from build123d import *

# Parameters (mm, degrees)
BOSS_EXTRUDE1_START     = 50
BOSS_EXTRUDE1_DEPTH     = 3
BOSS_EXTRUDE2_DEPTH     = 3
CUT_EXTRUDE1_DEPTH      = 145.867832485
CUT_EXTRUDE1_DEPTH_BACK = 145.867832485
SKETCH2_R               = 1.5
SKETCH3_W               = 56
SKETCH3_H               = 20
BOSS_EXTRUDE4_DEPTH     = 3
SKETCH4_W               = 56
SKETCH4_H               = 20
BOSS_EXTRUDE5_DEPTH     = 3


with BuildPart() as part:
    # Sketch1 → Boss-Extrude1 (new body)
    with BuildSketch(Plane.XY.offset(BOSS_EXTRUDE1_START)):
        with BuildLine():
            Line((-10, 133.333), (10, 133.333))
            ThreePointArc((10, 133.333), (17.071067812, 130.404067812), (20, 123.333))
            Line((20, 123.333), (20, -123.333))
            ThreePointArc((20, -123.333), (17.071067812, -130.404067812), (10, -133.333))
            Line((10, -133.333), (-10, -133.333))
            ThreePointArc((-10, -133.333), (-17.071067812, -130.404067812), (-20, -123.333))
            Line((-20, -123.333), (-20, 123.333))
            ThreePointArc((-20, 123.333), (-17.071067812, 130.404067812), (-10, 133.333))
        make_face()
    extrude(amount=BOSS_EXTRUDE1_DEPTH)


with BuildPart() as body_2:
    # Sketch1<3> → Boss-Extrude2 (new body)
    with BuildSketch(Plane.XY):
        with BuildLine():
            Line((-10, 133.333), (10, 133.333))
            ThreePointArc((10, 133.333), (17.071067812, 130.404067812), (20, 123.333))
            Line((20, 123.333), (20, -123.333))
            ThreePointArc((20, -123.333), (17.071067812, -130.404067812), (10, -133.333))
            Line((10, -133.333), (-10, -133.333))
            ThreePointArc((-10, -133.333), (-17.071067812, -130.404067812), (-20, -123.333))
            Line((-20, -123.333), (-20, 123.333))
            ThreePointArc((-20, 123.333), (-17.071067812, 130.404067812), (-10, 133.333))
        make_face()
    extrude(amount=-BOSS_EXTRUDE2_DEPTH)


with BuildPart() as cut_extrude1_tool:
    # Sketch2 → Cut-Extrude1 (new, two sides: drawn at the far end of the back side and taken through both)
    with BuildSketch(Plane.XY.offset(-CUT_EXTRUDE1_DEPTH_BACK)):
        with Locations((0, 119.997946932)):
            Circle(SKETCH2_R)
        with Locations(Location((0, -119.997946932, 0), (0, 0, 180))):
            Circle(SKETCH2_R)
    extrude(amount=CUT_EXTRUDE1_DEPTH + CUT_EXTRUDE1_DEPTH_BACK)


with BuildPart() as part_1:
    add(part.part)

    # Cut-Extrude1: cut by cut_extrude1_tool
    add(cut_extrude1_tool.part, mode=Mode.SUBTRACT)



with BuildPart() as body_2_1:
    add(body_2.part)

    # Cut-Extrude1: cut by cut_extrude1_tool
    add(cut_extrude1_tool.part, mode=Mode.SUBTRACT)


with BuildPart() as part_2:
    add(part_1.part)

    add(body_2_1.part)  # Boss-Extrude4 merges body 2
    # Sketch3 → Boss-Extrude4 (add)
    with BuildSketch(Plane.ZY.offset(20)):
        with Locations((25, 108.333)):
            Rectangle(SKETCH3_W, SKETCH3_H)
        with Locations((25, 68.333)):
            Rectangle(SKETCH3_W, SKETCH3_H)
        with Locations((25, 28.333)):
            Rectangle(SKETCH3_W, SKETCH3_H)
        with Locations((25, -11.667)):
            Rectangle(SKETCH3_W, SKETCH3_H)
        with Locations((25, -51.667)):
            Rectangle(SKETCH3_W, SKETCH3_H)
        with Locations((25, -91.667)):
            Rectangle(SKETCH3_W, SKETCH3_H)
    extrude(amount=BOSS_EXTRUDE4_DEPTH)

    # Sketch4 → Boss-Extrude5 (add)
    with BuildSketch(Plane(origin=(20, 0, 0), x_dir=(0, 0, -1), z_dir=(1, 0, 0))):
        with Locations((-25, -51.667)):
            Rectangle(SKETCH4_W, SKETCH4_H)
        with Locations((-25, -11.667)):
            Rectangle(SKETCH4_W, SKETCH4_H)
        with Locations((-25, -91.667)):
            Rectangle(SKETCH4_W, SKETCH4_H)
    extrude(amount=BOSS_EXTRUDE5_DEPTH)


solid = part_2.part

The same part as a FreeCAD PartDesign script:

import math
import FreeCAD as App
import Part
import Sketcher

doc = App.newDocument("Part")
body = doc.addObject("PartDesign::Body", "Body")

sketch1 = doc.addObject("Sketcher::SketchObject", "Sketch")
body.addObject(sketch1)
sketch1.AttachmentSupport = (doc.XY_Plane, [""])
sketch1.MapMode = "FlatFace"
sketch1.AttachmentOffset = App.Placement(App.Vector(0, 0, 50), App.Rotation())
sketch1.addGeometry(Part.LineSegment(App.Vector(10, 133, 0), App.Vector(-10, 133, 0)), False)
sketch1.addGeometry(Part.ArcOfCircle(Part.Circle(App.Vector(-10, 123, 0), App.Vector(0, 0, 1), 10), math.radians(90), math.radians(180)), False)
sketch1.addGeometry(Part.LineSegment(App.Vector(-20, 123, 0), App.Vector(-20, -123, 0)), False)
sketch1.addGeometry(Part.ArcOfCircle(Part.Circle(App.Vector(-10, -123, 0), App.Vector(0, 0, 1), 10), math.radians(180), math.radians(270)), False)
sketch1.addGeometry(Part.LineSegment(App.Vector(-10, -133, 0), App.Vector(10, -133, 0)), False)
sketch1.addGeometry(Part.ArcOfCircle(Part.Circle(App.Vector(10, -123, 0), App.Vector(0, 0, 1), 10), math.radians(-90), math.radians(0)), False)
sketch1.addGeometry(Part.LineSegment(App.Vector(20, -123, 0), App.Vector(20, 123, 0)), False)
sketch1.addGeometry(Part.ArcOfCircle(Part.Circle(App.Vector(10, 123, 0), App.Vector(0, 0, 1), 10), math.radians(0), math.radians(90)), False)
sketch1.addConstraint(Sketcher.Constraint("Tangent", 0, 2, 1, 1))
sketch1.addConstraint(Sketcher.Constraint("Tangent", 1, 2, 2, 1))
sketch1.addConstraint(Sketcher.Constraint("Tangent", 2, 2, 3, 1))
sketch1.addConstraint(Sketcher.Constraint("Tangent", 3, 2, 4, 1))
sketch1.addConstraint(Sketcher.Constraint("Tangent", 4, 2, 5, 1))
sketch1.addConstraint(Sketcher.Constraint("Tangent", 5, 2, 6, 1))
sketch1.addConstraint(Sketcher.Constraint("Tangent", 6, 2, 7, 1))
sketch1.addConstraint(Sketcher.Constraint("Tangent", 7, 2, 0, 1))
sketch1.addConstraint(Sketcher.Constraint("Horizontal", 0))
sketch1.addConstraint(Sketcher.Constraint("Vertical", 2))
sketch1.addConstraint(Sketcher.Constraint("Horizontal", 4))
sketch1.addConstraint(Sketcher.Constraint("Vertical", 6))
sketch1.addConstraint(Sketcher.Constraint("Equal", 1, 3))
sketch1.addConstraint(Sketcher.Constraint("Equal", 3, 5))
sketch1.addConstraint(Sketcher.Constraint("Equal", 5, 7))
sketch1.addConstraint(Sketcher.Constraint("Symmetric", 1, 3, 5, 3, -1, 1))
sketch1.addConstraint(Sketcher.Constraint("Radius", 1, 10.0))
sketch1.addConstraint(Sketcher.Constraint("DistanceX", 0, 2, 0, 1, 20.0))
sketch1.addConstraint(Sketcher.Constraint("DistanceY", 2, 2, 2, 1, 246.666))
pad1 = doc.addObject("PartDesign::Pad", "Pad")
body.addObject(pad1)
pad1.Profile = sketch1
pad1.Length = 3
body2 = doc.addObject("PartDesign::Body", "Body001")

sketch2 = doc.addObject("Sketcher::SketchObject", "Sketch001")
body2.addObject(sketch2)
sketch2.AttachmentSupport = (doc.getObject("XY_Plane001"), [""])
sketch2.MapMode = "FlatFace"
sketch2.addGeometry(Part.LineSegment(App.Vector(10, 133, 0), App.Vector(-10, 133, 0)), False)
sketch2.addGeometry(Part.ArcOfCircle(Part.Circle(App.Vector(-10, 123, 0), App.Vector(0, 0, 1), 10), math.radians(90), math.radians(180)), False)
sketch2.addGeometry(Part.LineSegment(App.Vector(-20, 123, 0), App.Vector(-20, -123, 0)), False)
sketch2.addGeometry(Part.ArcOfCircle(Part.Circle(App.Vector(-10, -123, 0), App.Vector(0, 0, 1), 10), math.radians(180), math.radians(270)), False)
sketch2.addGeometry(Part.LineSegment(App.Vector(-10, -133, 0), App.Vector(10, -133, 0)), False)
sketch2.addGeometry(Part.ArcOfCircle(Part.Circle(App.Vector(10, -123, 0), App.Vector(0, 0, 1), 10), math.radians(-90), math.radians(0)), False)
sketch2.addGeometry(Part.LineSegment(App.Vector(20, -123, 0), App.Vector(20, 123, 0)), False)
sketch2.addGeometry(Part.ArcOfCircle(Part.Circle(App.Vector(10, 123, 0), App.Vector(0, 0, 1), 10), math.radians(0), math.radians(90)), False)
sketch2.addConstraint(Sketcher.Constraint("Tangent", 0, 2, 1, 1))
sketch2.addConstraint(Sketcher.Constraint("Tangent", 1, 2, 2, 1))
sketch2.addConstraint(Sketcher.Constraint("Tangent", 2, 2, 3, 1))
sketch2.addConstraint(Sketcher.Constraint("Tangent", 3, 2, 4, 1))
sketch2.addConstraint(Sketcher.Constraint("Tangent", 4, 2, 5, 1))
sketch2.addConstraint(Sketcher.Constraint("Tangent", 5, 2, 6, 1))
sketch2.addConstraint(Sketcher.Constraint("Tangent", 6, 2, 7, 1))
sketch2.addConstraint(Sketcher.Constraint("Tangent", 7, 2, 0, 1))
sketch2.addConstraint(Sketcher.Constraint("Horizontal", 0))
sketch2.addConstraint(Sketcher.Constraint("Vertical", 2))
sketch2.addConstraint(Sketcher.Constraint("Horizontal", 4))
sketch2.addConstraint(Sketcher.Constraint("Vertical", 6))
sketch2.addConstraint(Sketcher.Constraint("Equal", 1, 3))
sketch2.addConstraint(Sketcher.Constraint("Equal", 3, 5))
sketch2.addConstraint(Sketcher.Constraint("Equal", 5, 7))
sketch2.addConstraint(Sketcher.Constraint("Symmetric", 1, 3, 5, 3, -1, 1))
sketch2.addConstraint(Sketcher.Constraint("Radius", 1, 10.0))
sketch2.addConstraint(Sketcher.Constraint("DistanceX", 0, 2, 0, 1, 20.0))
sketch2.addConstraint(Sketcher.Constraint("DistanceY", 2, 2, 2, 1, 246.666))
pad2 = doc.addObject("PartDesign::Pad", "Pad001")
body2.addObject(pad2)
pad2.Profile = sketch2
pad2.Length = 3
pad2.Reversed = True
body3 = doc.addObject("PartDesign::Body", "Body002")
body3.AllowCompound = True

sketch3 = doc.addObject("Sketcher::SketchObject", "Sketch002")
body3.addObject(sketch3)
sketch3.AttachmentSupport = (doc.getObject("XY_Plane002"), [""])
sketch3.MapMode = "FlatFace"
sketch3.addGeometry(Part.Circle(App.Vector(0, 120, 0), App.Vector(0, 0, 1), 1.5), False)
sketch3.addGeometry(Part.Circle(App.Vector(0, -120, 0), App.Vector(0, 0, 1), 1.5), False)
sketch3.addConstraint(Sketcher.Constraint("Equal", 0, 1))
sketch3.addConstraint(Sketcher.Constraint("Symmetric", 0, 3, 1, 3, -1, 1))
sketch3.addConstraint(Sketcher.Constraint("PointOnObject", 0, 3, -2))
sketch3.addConstraint(Sketcher.Constraint("Diameter", 0, 3.0))
sketch3.addConstraint(Sketcher.Constraint("DistanceY", -1, 1, 0, 3, 119.997947))
pad3 = doc.addObject("PartDesign::Pad", "Pad002")
body3.addObject(pad3)
pad3.Profile = sketch3
pad3.Type = "TwoLengths"
pad3.Length = 145.867832
pad3.Length2 = 145.867832
doc.recompute()

body4 = doc.addObject("PartDesign::Body", "Body003")
body4.BaseFeature = body3
boolean = doc.addObject("PartDesign::Boolean", "Boolean")
body.addObject(boolean)
boolean.Type = "Cut"
boolean.addObjects([body4])
doc.recompute()

boolean2 = doc.addObject("PartDesign::Boolean", "Boolean001")
body2.addObject(boolean2)
boolean2.Type = "Cut"
boolean2.addObjects([body3])
body.AllowCompound = True
doc.recompute()

boolean3 = doc.addObject("PartDesign::Boolean", "Boolean002")
body.addObject(boolean3)
boolean3.Type = "Fuse"
boolean3.addObjects([body2])

sketch4 = doc.addObject("Sketcher::SketchObject", "Sketch003")
body.addObject(sketch4)
sketch4.AttachmentSupport = (doc.YZ_Plane, [""])
sketch4.MapMode = "FlatFace"
sketch4.AttachmentOffset = App.Placement(App.Vector(0, 0, -20), App.Rotation())
sketch4.addGeometry(Part.LineSegment(App.Vector(118, -3, 0), App.Vector(98, -3, 0)), False)
sketch4.addGeometry(Part.LineSegment(App.Vector(98, -3, 0), App.Vector(98, 53, 0)), False)
sketch4.addGeometry(Part.LineSegment(App.Vector(98, 53, 0), App.Vector(118, 53, 0)), False)
sketch4.addGeometry(Part.LineSegment(App.Vector(118, 53, 0), App.Vector(118, -3, 0)), False)
sketch4.addGeometry(Part.LineSegment(App.Vector(78, -3, 0), App.Vector(58, -3, 0)), False)
sketch4.addGeometry(Part.LineSegment(App.Vector(58, -3, 0), App.Vector(58, 53, 0)), False)
sketch4.addGeometry(Part.LineSegment(App.Vector(58, 53, 0), App.Vector(78, 53, 0)), False)
sketch4.addGeometry(Part.LineSegment(App.Vector(78, 53, 0), App.Vector(78, -3, 0)), False)
sketch4.addGeometry(Part.LineSegment(App.Vector(38, -3, 0), App.Vector(18, -3, 0)), False)
sketch4.addGeometry(Part.LineSegment(App.Vector(18, -3, 0), App.Vector(18, 53, 0)), False)
sketch4.addGeometry(Part.LineSegment(App.Vector(18, 53, 0), App.Vector(38, 53, 0)), False)
sketch4.addGeometry(Part.LineSegment(App.Vector(38, 53, 0), App.Vector(38, -3, 0)), False)
sketch4.addGeometry(Part.LineSegment(App.Vector(-2, -3, 0), App.Vector(-22, -3, 0)), False)
sketch4.addGeometry(Part.LineSegment(App.Vector(-22, -3, 0), App.Vector(-22, 53, 0)), False)
sketch4.addGeometry(Part.LineSegment(App.Vector(-22, 53, 0), App.Vector(-2, 53, 0)), False)
sketch4.addGeometry(Part.LineSegment(App.Vector(-2, 53, 0), App.Vector(-2, -3, 0)), False)
sketch4.addGeometry(Part.LineSegment(App.Vector(-42, -3, 0), App.Vector(-62, -3, 0)), False)
sketch4.addGeometry(Part.LineSegment(App.Vector(-62, -3, 0), App.Vector(-62, 53, 0)), False)
sketch4.addGeometry(Part.LineSegment(App.Vector(-62, 53, 0), App.Vector(-42, 53, 0)), False)
sketch4.addGeometry(Part.LineSegment(App.Vector(-42, 53, 0), App.Vector(-42, -3, 0)), False)
sketch4.addGeometry(Part.LineSegment(App.Vector(-82, -3, 0), App.Vector(-102, -3, 0)), False)
sketch4.addGeometry(Part.LineSegment(App.Vector(-102, -3, 0), App.Vector(-102, 53, 0)), False)
sketch4.addGeometry(Part.LineSegment(App.Vector(-102, 53, 0), App.Vector(-82, 53, 0)), False)
sketch4.addGeometry(Part.LineSegment(App.Vector(-82, 53, 0), App.Vector(-82, -3, 0)), False)
sketch4.addConstraint(Sketcher.Constraint("Coincident", 0, 2, 1, 1))
sketch4.addConstraint(Sketcher.Constraint("Coincident", 1, 2, 2, 1))
sketch4.addConstraint(Sketcher.Constraint("Coincident", 2, 2, 3, 1))
sketch4.addConstraint(Sketcher.Constraint("Coincident", 3, 2, 0, 1))
sketch4.addConstraint(Sketcher.Constraint("Coincident", 4, 2, 5, 1))
sketch4.addConstraint(Sketcher.Constraint("Coincident", 5, 2, 6, 1))
sketch4.addConstraint(Sketcher.Constraint("Coincident", 6, 2, 7, 1))
sketch4.addConstraint(Sketcher.Constraint("Coincident", 7, 2, 4, 1))
sketch4.addConstraint(Sketcher.Constraint("Coincident", 8, 2, 9, 1))
sketch4.addConstraint(Sketcher.Constraint("Coincident", 9, 2, 10, 1))
sketch4.addConstraint(Sketcher.Constraint("Coincident", 10, 2, 11, 1))
sketch4.addConstraint(Sketcher.Constraint("Coincident", 11, 2, 8, 1))
sketch4.addConstraint(Sketcher.Constraint("Coincident", 12, 2, 13, 1))
sketch4.addConstraint(Sketcher.Constraint("Coincident", 13, 2, 14, 1))
sketch4.addConstraint(Sketcher.Constraint("Coincident", 14, 2, 15, 1))
sketch4.addConstraint(Sketcher.Constraint("Coincident", 15, 2, 12, 1))
sketch4.addConstraint(Sketcher.Constraint("Coincident", 16, 2, 17, 1))
sketch4.addConstraint(Sketcher.Constraint("Coincident", 17, 2, 18, 1))
sketch4.addConstraint(Sketcher.Constraint("Coincident", 18, 2, 19, 1))
sketch4.addConstraint(Sketcher.Constraint("Coincident", 19, 2, 16, 1))
sketch4.addConstraint(Sketcher.Constraint("Coincident", 20, 2, 21, 1))
sketch4.addConstraint(Sketcher.Constraint("Coincident", 21, 2, 22, 1))
sketch4.addConstraint(Sketcher.Constraint("Coincident", 22, 2, 23, 1))
sketch4.addConstraint(Sketcher.Constraint("Coincident", 23, 2, 20, 1))
sketch4.addConstraint(Sketcher.Constraint("Horizontal", 0))
sketch4.addConstraint(Sketcher.Constraint("Vertical", 1))
sketch4.addConstraint(Sketcher.Constraint("Horizontal", 2))
sketch4.addConstraint(Sketcher.Constraint("Vertical", 3))
sketch4.addConstraint(Sketcher.Constraint("Horizontal", 4))
sketch4.addConstraint(Sketcher.Constraint("Vertical", 5))
sketch4.addConstraint(Sketcher.Constraint("Horizontal", 6))
sketch4.addConstraint(Sketcher.Constraint("Vertical", 7))
sketch4.addConstraint(Sketcher.Constraint("Horizontal", 8))
sketch4.addConstraint(Sketcher.Constraint("Vertical", 9))
sketch4.addConstraint(Sketcher.Constraint("Horizontal", 10))
sketch4.addConstraint(Sketcher.Constraint("Vertical", 11))
sketch4.addConstraint(Sketcher.Constraint("Horizontal", 12))
sketch4.addConstraint(Sketcher.Constraint("Vertical", 13))
sketch4.addConstraint(Sketcher.Constraint("Horizontal", 14))
sketch4.addConstraint(Sketcher.Constraint("Vertical", 15))
sketch4.addConstraint(Sketcher.Constraint("Horizontal", 16))
sketch4.addConstraint(Sketcher.Constraint("Vertical", 17))
sketch4.addConstraint(Sketcher.Constraint("Horizontal", 18))
sketch4.addConstraint(Sketcher.Constraint("Vertical", 19))
sketch4.addConstraint(Sketcher.Constraint("Horizontal", 20))
sketch4.addConstraint(Sketcher.Constraint("Vertical", 21))
sketch4.addConstraint(Sketcher.Constraint("Horizontal", 22))
sketch4.addConstraint(Sketcher.Constraint("Vertical", 23))
sketch4.addConstraint(Sketcher.Constraint("Horizontal", 3, 2, 4, 2))
sketch4.addConstraint(Sketcher.Constraint("Horizontal", 2, 2, 5, 2))
sketch4.addConstraint(Sketcher.Constraint("Horizontal", 7, 2, 8, 2))
sketch4.addConstraint(Sketcher.Constraint("Horizontal", 6, 2, 9, 2))
sketch4.addConstraint(Sketcher.Constraint("Horizontal", 11, 2, 12, 2))
sketch4.addConstraint(Sketcher.Constraint("Horizontal", 10, 2, 13, 2))
sketch4.addConstraint(Sketcher.Constraint("Horizontal", 15, 2, 16, 2))
sketch4.addConstraint(Sketcher.Constraint("Horizontal", 14, 2, 17, 2))
sketch4.addConstraint(Sketcher.Constraint("Horizontal", 19, 2, 20, 2))
sketch4.addConstraint(Sketcher.Constraint("Horizontal", 18, 2, 21, 2))
sketch4.addConstraint(Sketcher.Constraint("Equal", 2, 4))
sketch4.addConstraint(Sketcher.Constraint("Equal", 6, 8))
sketch4.addConstraint(Sketcher.Constraint("Equal", 10, 12))
sketch4.addConstraint(Sketcher.Constraint("Equal", 14, 16))
sketch4.addConstraint(Sketcher.Constraint("Equal", 18, 20))
sketch4.addConstraint(Sketcher.Constraint("DistanceX", 0, 2, 0, 1, 20.0))
sketch4.addConstraint(Sketcher.Constraint("DistanceY", 1, 1, 1, 2, 56.0))
sketch4.addConstraint(Sketcher.Constraint("DistanceY", 0, 2, -1, 1, 3.0))
sketch4.addConstraint(Sketcher.Constraint("DistanceX", 4, 2, 0, 2, 40.0))
sketch4.addConstraint(Sketcher.Constraint("DistanceX", 8, 2, 4, 2, 40.0))
sketch4.addConstraint(Sketcher.Constraint("DistanceX", 12, 2, 8, 2, 40.0))
sketch4.addConstraint(Sketcher.Constraint("DistanceX", 16, 2, 12, 2, 40.0))
sketch4.addConstraint(Sketcher.Constraint("DistanceX", 20, 2, 16, 2, 40.0))
sketch4.addConstraint(Sketcher.Constraint("DistanceX", -1, 1, 0, 2, 98.333))
pad4 = doc.addObject("PartDesign::Pad", "Pad003")
body.addObject(pad4)
pad4.Profile = sketch4
pad4.Length = 3
pad4.Reversed = True

sketch5 = doc.addObject("Sketcher::SketchObject", "Sketch004")
body.addObject(sketch5)
sketch5.AttachmentSupport = (doc.YZ_Plane, [""])
sketch5.MapMode = "FlatFace"
sketch5.AttachmentOffset = App.Placement(App.Vector(0, 0, 20), App.Rotation())
sketch5.addGeometry(Part.LineSegment(App.Vector(-42, 53, 0), App.Vector(-62, 53, 0)), False)
sketch5.addGeometry(Part.LineSegment(App.Vector(-62, 53, 0), App.Vector(-62, -3, 0)), False)
sketch5.addGeometry(Part.LineSegment(App.Vector(-62, -3, 0), App.Vector(-42, -3, 0)), False)
sketch5.addGeometry(Part.LineSegment(App.Vector(-42, -3, 0), App.Vector(-42, 53, 0)), False)
sketch5.addGeometry(Part.LineSegment(App.Vector(-2, 53, 0), App.Vector(-22, 53, 0)), False)
sketch5.addGeometry(Part.LineSegment(App.Vector(-22, 53, 0), App.Vector(-22, -3, 0)), False)
sketch5.addGeometry(Part.LineSegment(App.Vector(-22, -3, 0), App.Vector(-2, -3, 0)), False)
sketch5.addGeometry(Part.LineSegment(App.Vector(-2, -3, 0), App.Vector(-2, 53, 0)), False)
sketch5.addGeometry(Part.LineSegment(App.Vector(-82, 53, 0), App.Vector(-102, 53, 0)), False)
sketch5.addGeometry(Part.LineSegment(App.Vector(-102, 53, 0), App.Vector(-102, -3, 0)), False)
sketch5.addGeometry(Part.LineSegment(App.Vector(-102, -3, 0), App.Vector(-82, -3, 0)), False)
sketch5.addGeometry(Part.LineSegment(App.Vector(-82, -3, 0), App.Vector(-82, 53, 0)), False)
sketch5.addConstraint(Sketcher.Constraint("Coincident", 0, 2, 1, 1))
sketch5.addConstraint(Sketcher.Constraint("Coincident", 1, 2, 2, 1))
sketch5.addConstraint(Sketcher.Constraint("Coincident", 2, 2, 3, 1))
sketch5.addConstraint(Sketcher.Constraint("Coincident", 3, 2, 0, 1))
sketch5.addConstraint(Sketcher.Constraint("Coincident", 4, 2, 5, 1))
sketch5.addConstraint(Sketcher.Constraint("Coincident", 5, 2, 6, 1))
sketch5.addConstraint(Sketcher.Constraint("Coincident", 6, 2, 7, 1))
sketch5.addConstraint(Sketcher.Constraint("Coincident", 7, 2, 4, 1))
sketch5.addConstraint(Sketcher.Constraint("Coincident", 8, 2, 9, 1))
sketch5.addConstraint(Sketcher.Constraint("Coincident", 9, 2, 10, 1))
sketch5.addConstraint(Sketcher.Constraint("Coincident", 10, 2, 11, 1))
sketch5.addConstraint(Sketcher.Constraint("Coincident", 11, 2, 8, 1))
sketch5.addConstraint(Sketcher.Constraint("Horizontal", 0))
sketch5.addConstraint(Sketcher.Constraint("Vertical", 1))
sketch5.addConstraint(Sketcher.Constraint("Horizontal", 2))
sketch5.addConstraint(Sketcher.Constraint("Vertical", 3))
sketch5.addConstraint(Sketcher.Constraint("Horizontal", 4))
sketch5.addConstraint(Sketcher.Constraint("Vertical", 5))
sketch5.addConstraint(Sketcher.Constraint("Horizontal", 6))
sketch5.addConstraint(Sketcher.Constraint("Vertical", 7))
sketch5.addConstraint(Sketcher.Constraint("Horizontal", 8))
sketch5.addConstraint(Sketcher.Constraint("Vertical", 9))
sketch5.addConstraint(Sketcher.Constraint("Horizontal", 10))
sketch5.addConstraint(Sketcher.Constraint("Vertical", 11))
sketch5.addConstraint(Sketcher.Constraint("Horizontal", 3, 2, 4, 2))
sketch5.addConstraint(Sketcher.Constraint("Horizontal", 2, 2, 5, 2))
sketch5.addConstraint(Sketcher.Constraint("Horizontal", 7, 2, 8, 2))
sketch5.addConstraint(Sketcher.Constraint("Horizontal", 6, 2, 9, 2))
sketch5.addConstraint(Sketcher.Constraint("Equal", 2, 4))
sketch5.addConstraint(Sketcher.Constraint("Equal", 6, 8))
sketch5.addConstraint(Sketcher.Constraint("DistanceX", 0, 2, 0, 1, 20.0))
sketch5.addConstraint(Sketcher.Constraint("DistanceY", 1, 2, 1, 1, 56.0))
sketch5.addConstraint(Sketcher.Constraint("DistanceY", -1, 1, 0, 2, 53.0))
sketch5.addConstraint(Sketcher.Constraint("DistanceX", 3, 2, 4, 2, 20.0))
sketch5.addConstraint(Sketcher.Constraint("DistanceX", 8, 2, 0, 2, 40.0))
sketch5.addConstraint(Sketcher.Constraint("DistanceX", 0, 2, -1, 1, 61.667))
pad5 = doc.addObject("PartDesign::Pad", "Pad004")
body.addObject(pad5)
pad5.Profile = sketch5
pad5.Length = 3

doc.recompute()
